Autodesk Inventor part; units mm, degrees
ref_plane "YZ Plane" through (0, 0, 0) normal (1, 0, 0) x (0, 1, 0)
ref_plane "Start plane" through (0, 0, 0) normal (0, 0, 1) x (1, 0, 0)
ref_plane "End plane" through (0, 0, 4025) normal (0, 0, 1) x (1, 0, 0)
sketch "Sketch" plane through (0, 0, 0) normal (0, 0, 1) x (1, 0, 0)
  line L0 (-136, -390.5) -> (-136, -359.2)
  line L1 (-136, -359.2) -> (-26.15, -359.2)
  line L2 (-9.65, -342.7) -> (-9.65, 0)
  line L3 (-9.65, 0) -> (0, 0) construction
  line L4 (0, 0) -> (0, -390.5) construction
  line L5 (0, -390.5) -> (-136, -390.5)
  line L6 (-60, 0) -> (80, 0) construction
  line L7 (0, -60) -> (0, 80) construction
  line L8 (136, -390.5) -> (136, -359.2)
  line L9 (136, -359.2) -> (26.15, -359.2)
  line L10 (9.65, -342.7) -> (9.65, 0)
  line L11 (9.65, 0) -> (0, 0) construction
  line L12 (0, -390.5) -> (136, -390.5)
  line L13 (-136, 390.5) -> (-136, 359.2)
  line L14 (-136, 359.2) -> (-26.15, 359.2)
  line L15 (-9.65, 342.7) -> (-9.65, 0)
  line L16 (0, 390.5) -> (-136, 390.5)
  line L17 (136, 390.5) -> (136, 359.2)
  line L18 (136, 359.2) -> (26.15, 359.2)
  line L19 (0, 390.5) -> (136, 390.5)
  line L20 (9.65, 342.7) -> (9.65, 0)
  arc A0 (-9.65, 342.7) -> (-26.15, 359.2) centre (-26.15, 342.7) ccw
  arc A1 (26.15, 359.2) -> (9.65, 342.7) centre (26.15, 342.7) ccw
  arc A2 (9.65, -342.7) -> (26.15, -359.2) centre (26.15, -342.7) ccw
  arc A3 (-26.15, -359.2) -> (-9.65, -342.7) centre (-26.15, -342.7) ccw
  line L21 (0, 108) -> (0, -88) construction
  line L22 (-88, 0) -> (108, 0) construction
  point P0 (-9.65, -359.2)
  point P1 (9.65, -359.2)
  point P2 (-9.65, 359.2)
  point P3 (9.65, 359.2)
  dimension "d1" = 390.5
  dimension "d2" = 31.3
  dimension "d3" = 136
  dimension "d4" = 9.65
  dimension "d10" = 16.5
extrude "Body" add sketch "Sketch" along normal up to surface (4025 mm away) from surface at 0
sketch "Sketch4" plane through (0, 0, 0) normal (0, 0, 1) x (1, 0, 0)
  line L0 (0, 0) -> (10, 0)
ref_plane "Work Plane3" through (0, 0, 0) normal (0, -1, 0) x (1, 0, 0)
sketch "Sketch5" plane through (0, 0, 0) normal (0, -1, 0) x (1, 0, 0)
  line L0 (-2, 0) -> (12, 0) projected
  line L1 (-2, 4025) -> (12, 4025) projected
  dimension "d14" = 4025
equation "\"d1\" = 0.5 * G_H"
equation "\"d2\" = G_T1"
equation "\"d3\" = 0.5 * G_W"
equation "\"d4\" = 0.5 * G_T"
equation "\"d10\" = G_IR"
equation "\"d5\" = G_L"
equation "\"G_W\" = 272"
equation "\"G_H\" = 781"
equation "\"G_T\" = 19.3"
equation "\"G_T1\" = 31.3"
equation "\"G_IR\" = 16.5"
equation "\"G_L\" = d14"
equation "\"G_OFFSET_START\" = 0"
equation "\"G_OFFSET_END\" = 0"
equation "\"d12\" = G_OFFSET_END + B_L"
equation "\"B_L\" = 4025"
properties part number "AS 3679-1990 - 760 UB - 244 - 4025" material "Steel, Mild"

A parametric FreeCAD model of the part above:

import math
import FreeCAD as App
import Part
import Sketcher
from FreeCAD import Vector
Q = App.Units.Quantity

doc = App.newDocument("Part")
params = doc.addObject("Spreadsheet::Sheet", "Params")
for row, (alias, value) in enumerate([
    ("sketch1_radius", "16.5 mm"),
    ("sketch1_height", "31.3 mm"),
    ("pad1_length", "4025 mm"),
], start=1):
    params.set(f"A{row}", alias)
    params.set(f"B{row}", "=" + value)
    params.setAlias(f"B{row}", alias)

body = doc.addObject("PartDesign::Body", "Body")

# Sketch on XY plane
sketch1 = body.newObject("Sketcher::SketchObject", "Sketch")
sketch1.AttachmentSupport = (doc.getObject("XY_Plane"), [""])
sketch1.MapMode = "FlatFace"
sketch1.addGeometry(Part.LineSegment(Vector(-136, -359, 0), Vector(-136, -390, 0)), False)
sketch1.addGeometry(Part.LineSegment(Vector(-136, -390, 0), Vector(136, -390, 0)), False)
sketch1.addGeometry(Part.LineSegment(Vector(136, -390, 0), Vector(136, -359, 0)), False)
sketch1.addGeometry(Part.LineSegment(Vector(136, -359, 0), Vector(26, -359, 0)), False)
sketch1.addGeometry(Part.ArcOfCircle(Part.Circle(Vector(26, -343, 0), Vector(0, 0, 1), 16), math.radians(180), math.radians(270)), False)
sketch1.addGeometry(Part.LineSegment(Vector(10, -343, 0), Vector(10, 343, 0)), False)
sketch1.addGeometry(Part.ArcOfCircle(Part.Circle(Vector(26, 343, 0), Vector(0, 0, 1), 16), math.radians(90), math.radians(180)), False)
sketch1.addGeometry(Part.LineSegment(Vector(26, 359, 0), Vector(136, 359, 0)), False)
sketch1.addGeometry(Part.LineSegment(Vector(136, 359, 0), Vector(136, 390, 0)), False)
sketch1.addGeometry(Part.LineSegment(Vector(136, 390, 0), Vector(-136, 390, 0)), False)
sketch1.addGeometry(Part.LineSegment(Vector(-136, 390, 0), Vector(-136, 359, 0)), False)
sketch1.addGeometry(Part.LineSegment(Vector(-136, 359, 0), Vector(-26, 359, 0)), False)
sketch1.addGeometry(Part.ArcOfCircle(Part.Circle(Vector(-26, 343, 0), Vector(0, 0, 1), 16), math.radians(0), math.radians(90)), False)
sketch1.addGeometry(Part.LineSegment(Vector(-10, 343, 0), Vector(-10, -343, 0)), False)
sketch1.addGeometry(Part.ArcOfCircle(Part.Circle(Vector(-26, -343, 0), Vector(0, 0, 1), 16), math.radians(-90), math.radians(0)), False)
sketch1.addGeometry(Part.LineSegment(Vector(-26, -359, 0), Vector(-136, -359, 0)), False)
sketch1.addConstraint(Sketcher.Constraint("Coincident", 0, 2, 1, 1))
sketch1.addConstraint(Sketcher.Constraint("Coincident", 1, 2, 2, 1))
sketch1.addConstraint(Sketcher.Constraint("Coincident", 2, 2, 3, 1))
sketch1.addConstraint(Sketcher.Constraint("Tangent", 3, 2, 4, 2))
sketch1.addConstraint(Sketcher.Constraint("Tangent", 4, 1, 5, 1))
sketch1.addConstraint(Sketcher.Constraint("Tangent", 5, 2, 6, 2))
sketch1.addConstraint(Sketcher.Constraint("Tangent", 6, 1, 7, 1))
sketch1.addConstraint(Sketcher.Constraint("Coincident", 7, 2, 8, 1))
sketch1.addConstraint(Sketcher.Constraint("Coincident", 8, 2, 9, 1))
sketch1.addConstraint(Sketcher.Constraint("Coincident", 9, 2, 10, 1))
sketch1.addConstraint(Sketcher.Constraint("Coincident", 10, 2, 11, 1))
sketch1.addConstraint(Sketcher.Constraint("Tangent", 11, 2, 12, 2))
sketch1.addConstraint(Sketcher.Constraint("Tangent", 12, 1, 13, 1))
sketch1.addConstraint(Sketcher.Constraint("Tangent", 13, 2, 14, 2))
sketch1.addConstraint(Sketcher.Constraint("Tangent", 14, 1, 15, 1))
sketch1.addConstraint(Sketcher.Constraint("Coincident", 15, 2, 0, 1))
sketch1.addConstraint(Sketcher.Constraint("Vertical", 0))
sketch1.addConstraint(Sketcher.Constraint("Horizontal", 1))
sketch1.addConstraint(Sketcher.Constraint("Vertical", 2))
sketch1.addConstraint(Sketcher.Constraint("Horizontal", 3))
sketch1.addConstraint(Sketcher.Constraint("Vertical", 5))
sketch1.addConstraint(Sketcher.Constraint("Horizontal", 7))
sketch1.addConstraint(Sketcher.Constraint("Vertical", 8))
sketch1.addConstraint(Sketcher.Constraint("Horizontal", 9))
sketch1.addConstraint(Sketcher.Constraint("Vertical", 10))
sketch1.addConstraint(Sketcher.Constraint("Horizontal", 11))
sketch1.addConstraint(Sketcher.Constraint("Vertical", 13))
sketch1.addConstraint(Sketcher.Constraint("Horizontal", 15))
sketch1.addConstraint(Sketcher.Constraint("Equal", 4, 6))
sketch1.addConstraint(Sketcher.Constraint("Equal", 6, 12))
sketch1.addConstraint(Sketcher.Constraint("Equal", 12, 14))
sketch1.addConstraint(Sketcher.Constraint("Symmetric", 4, 3, 12, 3, -1, 1))
sketch1.addConstraint(Sketcher.Constraint("Symmetric", 0, 2, 8, 2, -1, 1))
sketch1.addConstraint(Sketcher.Constraint("Symmetric", 7, 2, 10, 2, -2))
sketch1.addConstraint(Sketcher.Constraint("Symmetric", 2, 2, 15, 2, -2))
sketch1.addConstraint(Sketcher.Constraint("Radius", 4, Q("16.5 mm")))
sketch1.addConstraint(Sketcher.Constraint("DistanceY", 0, 2, 0, 1, Q("31.3 mm")))
sketch1.addConstraint(Sketcher.Constraint("DistanceX", 0, 2, -1, 1, Q("136 mm")))
sketch1.addConstraint(Sketcher.Constraint("DistanceY", 0, 2, -1, 1, Q("390.5 mm")))
sketch1.addConstraint(Sketcher.Constraint("DistanceX", -1, 1, 4, 1, Q("9.65 mm")))
sketch1.setExpression("Constraints[35]", "Params.sketch1_radius")
sketch1.setExpression("Constraints[36]", "Params.sketch1_height")
pad1 = body.newObject("PartDesign::Pad", "Pad")
pad1.Profile = sketch1
pad1.setExpression("Length", "Params.pad1_length")

doc.recompute()
